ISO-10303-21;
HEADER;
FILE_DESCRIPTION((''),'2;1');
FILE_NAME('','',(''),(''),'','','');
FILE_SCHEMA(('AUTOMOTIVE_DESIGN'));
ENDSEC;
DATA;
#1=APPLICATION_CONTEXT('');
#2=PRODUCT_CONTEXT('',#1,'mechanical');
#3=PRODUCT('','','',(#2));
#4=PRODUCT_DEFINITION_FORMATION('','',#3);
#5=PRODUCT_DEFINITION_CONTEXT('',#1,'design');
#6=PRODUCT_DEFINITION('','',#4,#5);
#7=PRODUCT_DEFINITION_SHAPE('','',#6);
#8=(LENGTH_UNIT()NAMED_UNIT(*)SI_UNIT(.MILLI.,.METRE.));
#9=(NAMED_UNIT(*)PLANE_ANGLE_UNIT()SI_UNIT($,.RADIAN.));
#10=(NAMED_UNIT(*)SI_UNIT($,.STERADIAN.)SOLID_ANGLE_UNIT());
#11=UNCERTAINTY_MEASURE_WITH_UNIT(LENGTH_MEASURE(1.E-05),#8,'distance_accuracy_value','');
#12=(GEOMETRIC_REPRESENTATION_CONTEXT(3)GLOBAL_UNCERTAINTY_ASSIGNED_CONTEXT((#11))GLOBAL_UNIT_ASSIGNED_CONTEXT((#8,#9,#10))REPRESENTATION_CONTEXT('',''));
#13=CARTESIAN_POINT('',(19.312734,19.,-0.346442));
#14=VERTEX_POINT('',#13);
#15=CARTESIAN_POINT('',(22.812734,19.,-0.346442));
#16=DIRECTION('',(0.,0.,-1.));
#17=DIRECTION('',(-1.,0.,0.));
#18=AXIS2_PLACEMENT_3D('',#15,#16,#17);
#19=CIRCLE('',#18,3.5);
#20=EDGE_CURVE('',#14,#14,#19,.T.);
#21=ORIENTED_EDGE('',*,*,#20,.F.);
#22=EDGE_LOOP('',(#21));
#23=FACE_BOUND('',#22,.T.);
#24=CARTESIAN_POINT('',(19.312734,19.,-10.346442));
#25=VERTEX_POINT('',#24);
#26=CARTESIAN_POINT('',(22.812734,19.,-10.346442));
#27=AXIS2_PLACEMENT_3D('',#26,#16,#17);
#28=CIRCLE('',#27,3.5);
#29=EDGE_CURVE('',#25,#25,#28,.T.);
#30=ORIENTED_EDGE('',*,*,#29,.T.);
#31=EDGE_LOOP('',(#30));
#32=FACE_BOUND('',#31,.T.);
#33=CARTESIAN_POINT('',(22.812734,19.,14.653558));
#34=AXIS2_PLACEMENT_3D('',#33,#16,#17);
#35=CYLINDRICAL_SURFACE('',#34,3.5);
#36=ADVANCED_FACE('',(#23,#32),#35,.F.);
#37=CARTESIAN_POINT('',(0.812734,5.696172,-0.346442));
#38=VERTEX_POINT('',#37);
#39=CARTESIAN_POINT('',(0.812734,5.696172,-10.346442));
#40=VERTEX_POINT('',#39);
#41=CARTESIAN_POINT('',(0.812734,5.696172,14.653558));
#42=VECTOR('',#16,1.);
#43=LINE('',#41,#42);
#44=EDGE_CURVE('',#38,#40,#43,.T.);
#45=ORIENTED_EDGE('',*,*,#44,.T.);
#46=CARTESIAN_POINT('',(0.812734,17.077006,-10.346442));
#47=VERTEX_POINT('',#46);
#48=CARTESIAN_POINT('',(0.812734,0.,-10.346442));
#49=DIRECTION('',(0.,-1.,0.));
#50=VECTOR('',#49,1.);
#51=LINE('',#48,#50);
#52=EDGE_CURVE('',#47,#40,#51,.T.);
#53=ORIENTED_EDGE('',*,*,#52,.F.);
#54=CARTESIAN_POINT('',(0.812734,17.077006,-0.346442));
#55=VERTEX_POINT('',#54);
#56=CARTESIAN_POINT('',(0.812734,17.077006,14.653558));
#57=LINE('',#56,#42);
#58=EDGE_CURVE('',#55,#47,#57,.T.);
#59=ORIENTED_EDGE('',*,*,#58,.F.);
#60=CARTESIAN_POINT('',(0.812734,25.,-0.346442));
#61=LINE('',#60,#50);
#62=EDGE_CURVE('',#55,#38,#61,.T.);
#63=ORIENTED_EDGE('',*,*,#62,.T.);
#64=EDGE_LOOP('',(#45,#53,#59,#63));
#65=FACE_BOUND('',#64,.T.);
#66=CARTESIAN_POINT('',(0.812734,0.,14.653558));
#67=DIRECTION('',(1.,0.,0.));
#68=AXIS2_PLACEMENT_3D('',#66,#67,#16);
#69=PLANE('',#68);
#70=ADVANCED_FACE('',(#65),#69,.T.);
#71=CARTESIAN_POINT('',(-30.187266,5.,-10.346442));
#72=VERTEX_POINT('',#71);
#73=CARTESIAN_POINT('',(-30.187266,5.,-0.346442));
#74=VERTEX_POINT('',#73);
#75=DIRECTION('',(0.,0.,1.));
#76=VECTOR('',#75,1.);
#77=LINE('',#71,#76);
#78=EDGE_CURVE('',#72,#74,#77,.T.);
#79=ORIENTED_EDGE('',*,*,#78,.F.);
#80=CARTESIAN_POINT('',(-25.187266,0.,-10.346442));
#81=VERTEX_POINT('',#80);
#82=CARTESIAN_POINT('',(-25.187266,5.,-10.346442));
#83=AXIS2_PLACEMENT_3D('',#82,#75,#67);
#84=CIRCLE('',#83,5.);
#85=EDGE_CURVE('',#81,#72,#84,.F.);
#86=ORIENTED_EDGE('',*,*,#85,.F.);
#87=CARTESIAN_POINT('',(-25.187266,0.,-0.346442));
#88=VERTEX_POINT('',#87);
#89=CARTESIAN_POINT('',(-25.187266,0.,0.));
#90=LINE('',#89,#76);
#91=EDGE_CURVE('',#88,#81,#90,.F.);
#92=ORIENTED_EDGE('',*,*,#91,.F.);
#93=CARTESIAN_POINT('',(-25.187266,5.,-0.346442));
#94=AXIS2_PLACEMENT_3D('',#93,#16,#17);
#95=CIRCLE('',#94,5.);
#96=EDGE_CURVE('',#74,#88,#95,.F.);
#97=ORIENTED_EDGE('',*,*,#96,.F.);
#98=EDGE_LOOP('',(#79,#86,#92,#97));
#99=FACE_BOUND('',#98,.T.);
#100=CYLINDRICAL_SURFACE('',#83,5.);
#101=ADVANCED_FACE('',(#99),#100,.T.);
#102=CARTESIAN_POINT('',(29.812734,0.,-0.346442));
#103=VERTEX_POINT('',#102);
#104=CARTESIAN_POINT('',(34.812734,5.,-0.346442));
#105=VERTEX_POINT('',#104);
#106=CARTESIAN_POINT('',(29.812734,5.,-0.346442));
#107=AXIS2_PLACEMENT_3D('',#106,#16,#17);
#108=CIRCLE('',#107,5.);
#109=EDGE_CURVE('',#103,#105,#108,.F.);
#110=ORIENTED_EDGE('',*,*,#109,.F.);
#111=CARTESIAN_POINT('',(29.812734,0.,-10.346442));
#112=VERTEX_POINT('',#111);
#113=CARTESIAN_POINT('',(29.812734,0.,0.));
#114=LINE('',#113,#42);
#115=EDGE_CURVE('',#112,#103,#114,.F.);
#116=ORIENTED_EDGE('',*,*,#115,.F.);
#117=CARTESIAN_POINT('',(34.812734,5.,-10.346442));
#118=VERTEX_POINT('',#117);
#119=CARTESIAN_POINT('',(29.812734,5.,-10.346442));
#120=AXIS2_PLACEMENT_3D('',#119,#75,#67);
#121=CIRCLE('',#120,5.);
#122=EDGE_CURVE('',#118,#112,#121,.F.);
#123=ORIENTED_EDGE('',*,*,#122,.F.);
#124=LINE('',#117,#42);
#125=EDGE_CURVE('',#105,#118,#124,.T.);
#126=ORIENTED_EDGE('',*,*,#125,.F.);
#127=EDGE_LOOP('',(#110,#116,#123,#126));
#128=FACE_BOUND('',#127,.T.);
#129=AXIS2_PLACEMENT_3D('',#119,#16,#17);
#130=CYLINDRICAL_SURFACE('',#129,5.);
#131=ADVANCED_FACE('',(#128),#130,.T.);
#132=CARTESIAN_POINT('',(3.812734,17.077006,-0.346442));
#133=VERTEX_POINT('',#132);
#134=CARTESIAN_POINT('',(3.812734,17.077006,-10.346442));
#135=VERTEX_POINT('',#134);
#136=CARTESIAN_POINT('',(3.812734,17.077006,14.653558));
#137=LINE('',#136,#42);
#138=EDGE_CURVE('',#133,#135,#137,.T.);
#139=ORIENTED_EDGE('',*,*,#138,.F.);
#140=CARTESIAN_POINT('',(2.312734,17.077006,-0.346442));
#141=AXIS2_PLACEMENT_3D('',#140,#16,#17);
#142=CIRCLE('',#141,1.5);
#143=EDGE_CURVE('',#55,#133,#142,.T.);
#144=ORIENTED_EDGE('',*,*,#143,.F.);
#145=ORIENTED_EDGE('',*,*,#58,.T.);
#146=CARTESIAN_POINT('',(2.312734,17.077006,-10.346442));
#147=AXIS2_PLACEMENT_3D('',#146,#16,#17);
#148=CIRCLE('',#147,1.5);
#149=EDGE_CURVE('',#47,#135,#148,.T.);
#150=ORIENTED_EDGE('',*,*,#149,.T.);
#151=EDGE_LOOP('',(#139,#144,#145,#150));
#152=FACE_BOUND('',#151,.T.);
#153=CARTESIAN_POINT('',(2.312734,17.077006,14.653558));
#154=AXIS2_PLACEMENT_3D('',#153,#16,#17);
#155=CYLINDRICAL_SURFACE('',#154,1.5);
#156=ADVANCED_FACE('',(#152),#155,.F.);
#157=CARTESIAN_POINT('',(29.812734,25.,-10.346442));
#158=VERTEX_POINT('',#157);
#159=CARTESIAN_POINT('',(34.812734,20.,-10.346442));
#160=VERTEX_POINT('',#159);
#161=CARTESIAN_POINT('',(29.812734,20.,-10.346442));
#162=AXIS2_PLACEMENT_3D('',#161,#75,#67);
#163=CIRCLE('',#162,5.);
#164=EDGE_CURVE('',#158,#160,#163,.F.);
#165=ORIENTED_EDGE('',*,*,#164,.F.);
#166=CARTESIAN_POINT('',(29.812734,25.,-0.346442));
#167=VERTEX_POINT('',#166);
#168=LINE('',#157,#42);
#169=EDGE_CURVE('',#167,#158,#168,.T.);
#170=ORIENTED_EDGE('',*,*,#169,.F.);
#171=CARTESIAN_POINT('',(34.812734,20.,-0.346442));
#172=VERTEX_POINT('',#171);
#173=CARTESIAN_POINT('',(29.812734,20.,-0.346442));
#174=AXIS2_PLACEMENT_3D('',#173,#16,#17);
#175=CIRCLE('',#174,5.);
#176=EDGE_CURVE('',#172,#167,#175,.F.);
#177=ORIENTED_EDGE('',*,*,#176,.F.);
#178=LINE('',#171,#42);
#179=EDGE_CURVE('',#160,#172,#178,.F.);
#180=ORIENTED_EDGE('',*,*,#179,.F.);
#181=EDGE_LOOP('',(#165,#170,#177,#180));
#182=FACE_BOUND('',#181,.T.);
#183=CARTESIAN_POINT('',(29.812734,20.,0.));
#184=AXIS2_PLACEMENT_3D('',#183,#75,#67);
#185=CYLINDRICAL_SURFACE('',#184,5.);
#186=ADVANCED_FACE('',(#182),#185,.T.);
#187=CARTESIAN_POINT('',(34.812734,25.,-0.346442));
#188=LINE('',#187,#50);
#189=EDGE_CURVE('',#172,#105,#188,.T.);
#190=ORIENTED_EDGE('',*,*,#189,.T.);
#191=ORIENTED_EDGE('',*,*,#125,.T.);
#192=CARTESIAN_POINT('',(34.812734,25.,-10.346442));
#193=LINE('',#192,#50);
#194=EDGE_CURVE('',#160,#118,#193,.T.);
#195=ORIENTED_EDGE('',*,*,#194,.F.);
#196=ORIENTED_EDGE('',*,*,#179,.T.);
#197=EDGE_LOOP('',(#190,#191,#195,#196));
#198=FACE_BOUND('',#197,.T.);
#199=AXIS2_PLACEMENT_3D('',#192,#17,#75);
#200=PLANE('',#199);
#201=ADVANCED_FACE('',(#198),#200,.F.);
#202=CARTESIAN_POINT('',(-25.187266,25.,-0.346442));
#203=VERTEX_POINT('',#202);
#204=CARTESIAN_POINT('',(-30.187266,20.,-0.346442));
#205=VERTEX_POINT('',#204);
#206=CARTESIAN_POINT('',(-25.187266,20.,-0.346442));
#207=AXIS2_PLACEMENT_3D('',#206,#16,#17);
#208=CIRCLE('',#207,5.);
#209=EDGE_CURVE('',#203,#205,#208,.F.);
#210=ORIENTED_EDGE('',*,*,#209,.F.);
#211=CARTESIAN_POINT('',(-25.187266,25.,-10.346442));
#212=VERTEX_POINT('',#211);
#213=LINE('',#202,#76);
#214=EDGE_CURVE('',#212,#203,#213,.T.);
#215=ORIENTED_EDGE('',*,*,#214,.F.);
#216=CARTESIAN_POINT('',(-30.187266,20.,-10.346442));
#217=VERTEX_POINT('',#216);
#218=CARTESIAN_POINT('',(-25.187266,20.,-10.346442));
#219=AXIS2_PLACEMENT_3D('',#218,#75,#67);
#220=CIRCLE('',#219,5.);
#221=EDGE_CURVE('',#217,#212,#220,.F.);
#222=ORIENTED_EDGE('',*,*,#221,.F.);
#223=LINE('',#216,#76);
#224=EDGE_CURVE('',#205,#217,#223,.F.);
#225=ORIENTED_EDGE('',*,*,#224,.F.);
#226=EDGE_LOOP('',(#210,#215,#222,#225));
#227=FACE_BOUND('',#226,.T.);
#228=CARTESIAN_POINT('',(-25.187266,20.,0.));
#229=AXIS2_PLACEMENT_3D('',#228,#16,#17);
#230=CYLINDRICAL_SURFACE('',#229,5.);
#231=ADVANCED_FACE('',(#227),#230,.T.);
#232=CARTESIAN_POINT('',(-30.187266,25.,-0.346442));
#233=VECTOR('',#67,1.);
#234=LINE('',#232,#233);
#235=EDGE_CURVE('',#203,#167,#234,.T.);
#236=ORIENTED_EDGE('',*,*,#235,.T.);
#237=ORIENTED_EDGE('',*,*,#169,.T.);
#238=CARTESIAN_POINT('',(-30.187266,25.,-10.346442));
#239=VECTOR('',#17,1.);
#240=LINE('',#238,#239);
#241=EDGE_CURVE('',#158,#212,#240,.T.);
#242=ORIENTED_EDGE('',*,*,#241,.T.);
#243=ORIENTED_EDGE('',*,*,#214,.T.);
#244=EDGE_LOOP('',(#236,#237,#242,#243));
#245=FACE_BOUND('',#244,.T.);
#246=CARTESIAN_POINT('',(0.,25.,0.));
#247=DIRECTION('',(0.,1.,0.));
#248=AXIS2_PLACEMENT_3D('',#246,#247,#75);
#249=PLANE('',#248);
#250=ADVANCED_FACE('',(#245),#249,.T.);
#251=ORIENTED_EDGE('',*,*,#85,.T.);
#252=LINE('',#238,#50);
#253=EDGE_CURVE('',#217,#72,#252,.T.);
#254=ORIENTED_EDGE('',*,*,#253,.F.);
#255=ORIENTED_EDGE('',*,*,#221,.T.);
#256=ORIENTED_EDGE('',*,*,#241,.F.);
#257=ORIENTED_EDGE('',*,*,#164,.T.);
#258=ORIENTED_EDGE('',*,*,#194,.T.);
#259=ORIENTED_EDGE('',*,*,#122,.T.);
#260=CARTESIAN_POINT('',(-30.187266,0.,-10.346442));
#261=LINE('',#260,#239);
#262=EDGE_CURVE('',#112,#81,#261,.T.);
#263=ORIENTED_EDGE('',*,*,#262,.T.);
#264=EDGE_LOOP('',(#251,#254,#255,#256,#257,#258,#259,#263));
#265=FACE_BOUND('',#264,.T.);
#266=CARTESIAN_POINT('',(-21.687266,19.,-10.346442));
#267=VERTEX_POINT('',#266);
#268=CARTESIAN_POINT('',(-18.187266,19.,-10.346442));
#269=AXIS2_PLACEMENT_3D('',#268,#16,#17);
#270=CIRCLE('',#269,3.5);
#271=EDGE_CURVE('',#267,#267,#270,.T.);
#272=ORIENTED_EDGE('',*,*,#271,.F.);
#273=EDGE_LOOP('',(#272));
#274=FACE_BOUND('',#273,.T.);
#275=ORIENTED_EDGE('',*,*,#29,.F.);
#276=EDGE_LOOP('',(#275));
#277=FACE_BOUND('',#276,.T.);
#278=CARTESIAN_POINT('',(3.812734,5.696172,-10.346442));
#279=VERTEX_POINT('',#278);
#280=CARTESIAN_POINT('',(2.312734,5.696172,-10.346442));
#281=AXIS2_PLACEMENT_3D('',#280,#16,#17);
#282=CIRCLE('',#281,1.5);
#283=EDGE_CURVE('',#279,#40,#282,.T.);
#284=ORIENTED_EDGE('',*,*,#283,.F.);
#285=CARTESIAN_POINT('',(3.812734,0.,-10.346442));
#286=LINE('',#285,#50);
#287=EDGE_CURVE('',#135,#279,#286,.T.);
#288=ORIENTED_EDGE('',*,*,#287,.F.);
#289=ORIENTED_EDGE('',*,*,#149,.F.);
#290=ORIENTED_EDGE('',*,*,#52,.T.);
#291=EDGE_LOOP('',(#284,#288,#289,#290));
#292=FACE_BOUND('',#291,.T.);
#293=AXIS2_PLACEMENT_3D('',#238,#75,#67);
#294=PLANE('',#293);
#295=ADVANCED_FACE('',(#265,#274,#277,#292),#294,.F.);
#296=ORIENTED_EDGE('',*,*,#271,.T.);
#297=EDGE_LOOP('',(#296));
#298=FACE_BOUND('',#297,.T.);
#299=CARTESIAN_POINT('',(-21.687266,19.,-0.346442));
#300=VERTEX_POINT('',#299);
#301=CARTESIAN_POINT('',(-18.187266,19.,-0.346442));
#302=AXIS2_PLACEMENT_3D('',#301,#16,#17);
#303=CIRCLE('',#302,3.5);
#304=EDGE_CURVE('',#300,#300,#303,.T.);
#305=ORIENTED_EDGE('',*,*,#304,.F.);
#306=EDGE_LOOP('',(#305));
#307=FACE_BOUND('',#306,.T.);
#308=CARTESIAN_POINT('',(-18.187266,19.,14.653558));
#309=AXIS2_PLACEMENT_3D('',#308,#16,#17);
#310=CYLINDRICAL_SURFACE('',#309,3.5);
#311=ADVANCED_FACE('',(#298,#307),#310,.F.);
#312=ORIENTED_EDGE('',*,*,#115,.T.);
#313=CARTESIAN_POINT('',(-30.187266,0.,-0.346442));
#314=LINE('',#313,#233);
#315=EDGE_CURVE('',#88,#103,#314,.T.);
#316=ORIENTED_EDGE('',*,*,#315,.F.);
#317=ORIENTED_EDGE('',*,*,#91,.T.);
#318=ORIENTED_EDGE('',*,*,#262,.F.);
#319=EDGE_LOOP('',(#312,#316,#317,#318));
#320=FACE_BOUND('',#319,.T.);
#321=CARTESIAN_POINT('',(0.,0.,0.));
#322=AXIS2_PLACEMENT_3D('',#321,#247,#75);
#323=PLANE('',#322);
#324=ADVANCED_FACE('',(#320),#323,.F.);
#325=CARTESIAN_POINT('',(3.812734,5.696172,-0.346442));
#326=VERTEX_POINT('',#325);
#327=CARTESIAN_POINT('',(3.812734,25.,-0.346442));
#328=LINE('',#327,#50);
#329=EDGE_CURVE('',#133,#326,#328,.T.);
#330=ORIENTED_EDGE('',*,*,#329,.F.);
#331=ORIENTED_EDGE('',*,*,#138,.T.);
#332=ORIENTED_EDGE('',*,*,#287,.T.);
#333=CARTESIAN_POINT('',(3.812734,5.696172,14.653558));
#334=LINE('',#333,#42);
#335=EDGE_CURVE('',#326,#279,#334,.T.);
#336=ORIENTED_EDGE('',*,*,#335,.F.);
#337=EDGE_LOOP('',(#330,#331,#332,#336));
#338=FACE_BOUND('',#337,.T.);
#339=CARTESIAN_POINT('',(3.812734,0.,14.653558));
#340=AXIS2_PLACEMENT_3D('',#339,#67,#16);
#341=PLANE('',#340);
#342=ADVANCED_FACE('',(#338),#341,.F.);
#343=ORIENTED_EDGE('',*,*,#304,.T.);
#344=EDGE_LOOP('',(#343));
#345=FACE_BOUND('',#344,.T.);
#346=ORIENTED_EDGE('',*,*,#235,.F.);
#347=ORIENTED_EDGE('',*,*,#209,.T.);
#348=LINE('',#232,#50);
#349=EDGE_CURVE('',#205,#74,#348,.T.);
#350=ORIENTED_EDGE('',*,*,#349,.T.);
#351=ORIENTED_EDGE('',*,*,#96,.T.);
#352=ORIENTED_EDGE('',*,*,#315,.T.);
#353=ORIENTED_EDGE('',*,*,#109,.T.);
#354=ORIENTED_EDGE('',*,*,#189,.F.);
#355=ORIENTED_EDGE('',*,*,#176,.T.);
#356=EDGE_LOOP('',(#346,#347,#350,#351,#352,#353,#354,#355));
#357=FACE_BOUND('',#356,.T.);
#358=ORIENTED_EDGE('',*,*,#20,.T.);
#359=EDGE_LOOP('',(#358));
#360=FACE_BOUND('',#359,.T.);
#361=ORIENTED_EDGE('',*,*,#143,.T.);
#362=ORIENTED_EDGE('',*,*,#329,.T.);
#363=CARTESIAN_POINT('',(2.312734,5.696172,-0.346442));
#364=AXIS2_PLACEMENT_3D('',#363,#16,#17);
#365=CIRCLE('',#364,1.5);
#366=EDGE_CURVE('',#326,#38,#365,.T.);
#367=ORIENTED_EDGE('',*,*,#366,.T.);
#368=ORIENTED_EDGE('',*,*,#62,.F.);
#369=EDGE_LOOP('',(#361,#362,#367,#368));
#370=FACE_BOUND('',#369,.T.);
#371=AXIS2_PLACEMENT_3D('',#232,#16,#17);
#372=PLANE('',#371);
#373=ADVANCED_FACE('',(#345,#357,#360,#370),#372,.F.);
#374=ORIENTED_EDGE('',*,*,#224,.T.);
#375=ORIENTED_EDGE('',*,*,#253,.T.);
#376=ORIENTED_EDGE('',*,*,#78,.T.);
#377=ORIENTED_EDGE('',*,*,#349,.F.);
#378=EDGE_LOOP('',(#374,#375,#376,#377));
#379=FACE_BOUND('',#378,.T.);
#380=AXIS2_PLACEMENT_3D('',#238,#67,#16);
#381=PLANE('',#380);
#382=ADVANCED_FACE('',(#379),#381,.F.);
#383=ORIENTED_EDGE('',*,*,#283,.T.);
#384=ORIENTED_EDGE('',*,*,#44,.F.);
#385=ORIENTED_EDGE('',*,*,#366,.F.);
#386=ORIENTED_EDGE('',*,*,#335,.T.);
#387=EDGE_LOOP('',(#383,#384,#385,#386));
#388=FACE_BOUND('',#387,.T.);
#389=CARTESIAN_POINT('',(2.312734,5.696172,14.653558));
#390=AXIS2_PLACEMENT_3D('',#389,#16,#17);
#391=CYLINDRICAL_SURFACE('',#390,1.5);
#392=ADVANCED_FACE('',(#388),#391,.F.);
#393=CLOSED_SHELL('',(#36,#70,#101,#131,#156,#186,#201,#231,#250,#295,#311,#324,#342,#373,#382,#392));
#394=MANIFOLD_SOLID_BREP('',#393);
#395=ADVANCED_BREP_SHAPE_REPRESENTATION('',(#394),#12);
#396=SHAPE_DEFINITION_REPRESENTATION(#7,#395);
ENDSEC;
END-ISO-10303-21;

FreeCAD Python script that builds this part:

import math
import FreeCAD as App
import Part
import Sketcher
from FreeCAD import Vector


def edges_at(feature, points):
    """Names of the edges that pass closest to the given points."""
    edges = feature.Shape.Edges
    near = lambda p: min(range(len(edges)), key=lambda i: edges[i].distToShape(Part.Vertex(*p))[0])
    return sorted({f"Edge{near(p) + 1}" for p in points})

doc = App.newDocument("Part")
body = doc.addObject("PartDesign::Body", "Body")

sketch1 = doc.addObject("Sketcher::SketchObject", "Sketch")
body.addObject(sketch1)
sketch1.AttachmentSupport = (doc.XZ_Plane, [""])
sketch1.MapMode = "FlatFace"
sketch1.addGeometry(Part.LineSegment(Vector(-30, -10, 0), Vector(-30, 0, 0)), False)
sketch1.addGeometry(Part.LineSegment(Vector(-30, 0, 0), Vector(35, 0, 0)), False)
sketch1.addGeometry(Part.LineSegment(Vector(35, 0, 0), Vector(35, -10, 0)), False)
sketch1.addGeometry(Part.LineSegment(Vector(35, -10, 0), Vector(-30, -10, 0)), False)
sketch1.addConstraint(Sketcher.Constraint("Coincident", 0, 2, 1, 1))
sketch1.addConstraint(Sketcher.Constraint("Coincident", 1, 2, 2, 1))
sketch1.addConstraint(Sketcher.Constraint("Coincident", 2, 2, 3, 1))
sketch1.addConstraint(Sketcher.Constraint("Coincident", 3, 2, 0, 1))
sketch1.addConstraint(Sketcher.Constraint("Vertical", 0))
sketch1.addConstraint(Sketcher.Constraint("Horizontal", 1))
sketch1.addConstraint(Sketcher.Constraint("Vertical", 2))
sketch1.addConstraint(Sketcher.Constraint("Horizontal", 3))
sketch1.addConstraint(Sketcher.Constraint("DistanceX", 1, 1, 1, 2, 65.0))
sketch1.addConstraint(Sketcher.Constraint("DistanceY", 0, 1, 0, 2, 10.0))
sketch1.addConstraint(Sketcher.Constraint("DistanceY", 0, 2, -1, 1, 0.346442))
sketch1.addConstraint(Sketcher.Constraint("DistanceX", 0, 2, -1, 1, 30.187266))
pad1 = doc.addObject("PartDesign::Pad", "Pad")
body.addObject(pad1)
pad1.Profile = sketch1
pad1.Length = 25
pad1.Reversed = True

sketch2 = doc.addObject("Sketcher::SketchObject", "Sketch001")
body.addObject(sketch2)
sketch2.AttachmentSupport = (doc.XY_Plane, [""])
sketch2.MapMode = "FlatFace"
sketch2.AttachmentOffset = App.Placement(Vector(0, 0, -10.346442), App.Rotation())
sketch2.addGeometry(Part.Circle(Vector(-18.2, 19, 0), Vector(0, 0, 1), 3.5), False)
sketch2.addGeometry(Part.LineSegment(Vector(3.8, 17.1, 0), Vector(3.8, 5.7, 0)), False)
sketch2.addGeometry(Part.ArcOfCircle(Part.Circle(Vector(2.3, 5.7, 0), Vector(0, 0, 1), 1.5), math.radians(180), math.radians(360)), False)
sketch2.addGeometry(Part.LineSegment(Vector(0.8, 5.7, 0), Vector(0.8, 17.1, 0)), False)
sketch2.addGeometry(Part.ArcOfCircle(Part.Circle(Vector(2.3, 17.1, 0), Vector(0, 0, 1), 1.5), math.radians(0), math.radians(180)), False)
sketch2.addGeometry(Part.Circle(Vector(22.8, 19, 0), Vector(0, 0, 1), 3.5), False)
sketch2.addConstraint(Sketcher.Constraint("Tangent", 1, 2, 2, 2))
sketch2.addConstraint(Sketcher.Constraint("Tangent", 2, 1, 3, 1))
sketch2.addConstraint(Sketcher.Constraint("Tangent", 3, 2, 4, 2))
sketch2.addConstraint(Sketcher.Constraint("Tangent", 4, 1, 1, 1))
sketch2.addConstraint(Sketcher.Constraint("Vertical", 1))
sketch2.addConstraint(Sketcher.Constraint("Vertical", 3))
sketch2.addConstraint(Sketcher.Constraint("Equal", 0, 5))
sketch2.addConstraint(Sketcher.Constraint("Horizontal", 0, 3, 5, 3))
sketch2.addConstraint(Sketcher.Constraint("Diameter", 0, 7.0))
sketch2.addConstraint(Sketcher.Constraint("Radius", 2, 1.5))
sketch2.addConstraint(Sketcher.Constraint("DistanceY", -1, 1, 0, 3, 19.0))
sketch2.addConstraint(Sketcher.Constraint("DistanceX", 0, 3, 5, 3, 41.0))
sketch2.addConstraint(Sketcher.Constraint("DistanceX", 1, 2, 5, 3, 19.0))
sketch2.addConstraint(Sketcher.Constraint("DistanceY", 1, 2, 1, 1, 11.380834))
sketch2.addConstraint(Sketcher.Constraint("DistanceX", 0, 3, -1, 1, 18.187266))
sketch2.addConstraint(Sketcher.Constraint("DistanceY", -1, 1, 2, 3, 5.696172))
pocket1 = doc.addObject("PartDesign::Pocket", "Pocket")
body.addObject(pocket1)
pocket1.Profile = sketch2
pocket1.Length = 25
pocket1.Reversed = True
doc.recompute()

fillet = doc.addObject("PartDesign::Fillet", "Fillet")
body.addObject(fillet)
fillet.Base = (pocket1, edges_at(pocket1, [
    (34.813, 25, -5.346),
    (-30.187, 25, -5.346),
    (34.813, 0, -5.346),
    (-30.187, 0, -5.346),
]))
fillet.Radius = 5

doc.recompute()
